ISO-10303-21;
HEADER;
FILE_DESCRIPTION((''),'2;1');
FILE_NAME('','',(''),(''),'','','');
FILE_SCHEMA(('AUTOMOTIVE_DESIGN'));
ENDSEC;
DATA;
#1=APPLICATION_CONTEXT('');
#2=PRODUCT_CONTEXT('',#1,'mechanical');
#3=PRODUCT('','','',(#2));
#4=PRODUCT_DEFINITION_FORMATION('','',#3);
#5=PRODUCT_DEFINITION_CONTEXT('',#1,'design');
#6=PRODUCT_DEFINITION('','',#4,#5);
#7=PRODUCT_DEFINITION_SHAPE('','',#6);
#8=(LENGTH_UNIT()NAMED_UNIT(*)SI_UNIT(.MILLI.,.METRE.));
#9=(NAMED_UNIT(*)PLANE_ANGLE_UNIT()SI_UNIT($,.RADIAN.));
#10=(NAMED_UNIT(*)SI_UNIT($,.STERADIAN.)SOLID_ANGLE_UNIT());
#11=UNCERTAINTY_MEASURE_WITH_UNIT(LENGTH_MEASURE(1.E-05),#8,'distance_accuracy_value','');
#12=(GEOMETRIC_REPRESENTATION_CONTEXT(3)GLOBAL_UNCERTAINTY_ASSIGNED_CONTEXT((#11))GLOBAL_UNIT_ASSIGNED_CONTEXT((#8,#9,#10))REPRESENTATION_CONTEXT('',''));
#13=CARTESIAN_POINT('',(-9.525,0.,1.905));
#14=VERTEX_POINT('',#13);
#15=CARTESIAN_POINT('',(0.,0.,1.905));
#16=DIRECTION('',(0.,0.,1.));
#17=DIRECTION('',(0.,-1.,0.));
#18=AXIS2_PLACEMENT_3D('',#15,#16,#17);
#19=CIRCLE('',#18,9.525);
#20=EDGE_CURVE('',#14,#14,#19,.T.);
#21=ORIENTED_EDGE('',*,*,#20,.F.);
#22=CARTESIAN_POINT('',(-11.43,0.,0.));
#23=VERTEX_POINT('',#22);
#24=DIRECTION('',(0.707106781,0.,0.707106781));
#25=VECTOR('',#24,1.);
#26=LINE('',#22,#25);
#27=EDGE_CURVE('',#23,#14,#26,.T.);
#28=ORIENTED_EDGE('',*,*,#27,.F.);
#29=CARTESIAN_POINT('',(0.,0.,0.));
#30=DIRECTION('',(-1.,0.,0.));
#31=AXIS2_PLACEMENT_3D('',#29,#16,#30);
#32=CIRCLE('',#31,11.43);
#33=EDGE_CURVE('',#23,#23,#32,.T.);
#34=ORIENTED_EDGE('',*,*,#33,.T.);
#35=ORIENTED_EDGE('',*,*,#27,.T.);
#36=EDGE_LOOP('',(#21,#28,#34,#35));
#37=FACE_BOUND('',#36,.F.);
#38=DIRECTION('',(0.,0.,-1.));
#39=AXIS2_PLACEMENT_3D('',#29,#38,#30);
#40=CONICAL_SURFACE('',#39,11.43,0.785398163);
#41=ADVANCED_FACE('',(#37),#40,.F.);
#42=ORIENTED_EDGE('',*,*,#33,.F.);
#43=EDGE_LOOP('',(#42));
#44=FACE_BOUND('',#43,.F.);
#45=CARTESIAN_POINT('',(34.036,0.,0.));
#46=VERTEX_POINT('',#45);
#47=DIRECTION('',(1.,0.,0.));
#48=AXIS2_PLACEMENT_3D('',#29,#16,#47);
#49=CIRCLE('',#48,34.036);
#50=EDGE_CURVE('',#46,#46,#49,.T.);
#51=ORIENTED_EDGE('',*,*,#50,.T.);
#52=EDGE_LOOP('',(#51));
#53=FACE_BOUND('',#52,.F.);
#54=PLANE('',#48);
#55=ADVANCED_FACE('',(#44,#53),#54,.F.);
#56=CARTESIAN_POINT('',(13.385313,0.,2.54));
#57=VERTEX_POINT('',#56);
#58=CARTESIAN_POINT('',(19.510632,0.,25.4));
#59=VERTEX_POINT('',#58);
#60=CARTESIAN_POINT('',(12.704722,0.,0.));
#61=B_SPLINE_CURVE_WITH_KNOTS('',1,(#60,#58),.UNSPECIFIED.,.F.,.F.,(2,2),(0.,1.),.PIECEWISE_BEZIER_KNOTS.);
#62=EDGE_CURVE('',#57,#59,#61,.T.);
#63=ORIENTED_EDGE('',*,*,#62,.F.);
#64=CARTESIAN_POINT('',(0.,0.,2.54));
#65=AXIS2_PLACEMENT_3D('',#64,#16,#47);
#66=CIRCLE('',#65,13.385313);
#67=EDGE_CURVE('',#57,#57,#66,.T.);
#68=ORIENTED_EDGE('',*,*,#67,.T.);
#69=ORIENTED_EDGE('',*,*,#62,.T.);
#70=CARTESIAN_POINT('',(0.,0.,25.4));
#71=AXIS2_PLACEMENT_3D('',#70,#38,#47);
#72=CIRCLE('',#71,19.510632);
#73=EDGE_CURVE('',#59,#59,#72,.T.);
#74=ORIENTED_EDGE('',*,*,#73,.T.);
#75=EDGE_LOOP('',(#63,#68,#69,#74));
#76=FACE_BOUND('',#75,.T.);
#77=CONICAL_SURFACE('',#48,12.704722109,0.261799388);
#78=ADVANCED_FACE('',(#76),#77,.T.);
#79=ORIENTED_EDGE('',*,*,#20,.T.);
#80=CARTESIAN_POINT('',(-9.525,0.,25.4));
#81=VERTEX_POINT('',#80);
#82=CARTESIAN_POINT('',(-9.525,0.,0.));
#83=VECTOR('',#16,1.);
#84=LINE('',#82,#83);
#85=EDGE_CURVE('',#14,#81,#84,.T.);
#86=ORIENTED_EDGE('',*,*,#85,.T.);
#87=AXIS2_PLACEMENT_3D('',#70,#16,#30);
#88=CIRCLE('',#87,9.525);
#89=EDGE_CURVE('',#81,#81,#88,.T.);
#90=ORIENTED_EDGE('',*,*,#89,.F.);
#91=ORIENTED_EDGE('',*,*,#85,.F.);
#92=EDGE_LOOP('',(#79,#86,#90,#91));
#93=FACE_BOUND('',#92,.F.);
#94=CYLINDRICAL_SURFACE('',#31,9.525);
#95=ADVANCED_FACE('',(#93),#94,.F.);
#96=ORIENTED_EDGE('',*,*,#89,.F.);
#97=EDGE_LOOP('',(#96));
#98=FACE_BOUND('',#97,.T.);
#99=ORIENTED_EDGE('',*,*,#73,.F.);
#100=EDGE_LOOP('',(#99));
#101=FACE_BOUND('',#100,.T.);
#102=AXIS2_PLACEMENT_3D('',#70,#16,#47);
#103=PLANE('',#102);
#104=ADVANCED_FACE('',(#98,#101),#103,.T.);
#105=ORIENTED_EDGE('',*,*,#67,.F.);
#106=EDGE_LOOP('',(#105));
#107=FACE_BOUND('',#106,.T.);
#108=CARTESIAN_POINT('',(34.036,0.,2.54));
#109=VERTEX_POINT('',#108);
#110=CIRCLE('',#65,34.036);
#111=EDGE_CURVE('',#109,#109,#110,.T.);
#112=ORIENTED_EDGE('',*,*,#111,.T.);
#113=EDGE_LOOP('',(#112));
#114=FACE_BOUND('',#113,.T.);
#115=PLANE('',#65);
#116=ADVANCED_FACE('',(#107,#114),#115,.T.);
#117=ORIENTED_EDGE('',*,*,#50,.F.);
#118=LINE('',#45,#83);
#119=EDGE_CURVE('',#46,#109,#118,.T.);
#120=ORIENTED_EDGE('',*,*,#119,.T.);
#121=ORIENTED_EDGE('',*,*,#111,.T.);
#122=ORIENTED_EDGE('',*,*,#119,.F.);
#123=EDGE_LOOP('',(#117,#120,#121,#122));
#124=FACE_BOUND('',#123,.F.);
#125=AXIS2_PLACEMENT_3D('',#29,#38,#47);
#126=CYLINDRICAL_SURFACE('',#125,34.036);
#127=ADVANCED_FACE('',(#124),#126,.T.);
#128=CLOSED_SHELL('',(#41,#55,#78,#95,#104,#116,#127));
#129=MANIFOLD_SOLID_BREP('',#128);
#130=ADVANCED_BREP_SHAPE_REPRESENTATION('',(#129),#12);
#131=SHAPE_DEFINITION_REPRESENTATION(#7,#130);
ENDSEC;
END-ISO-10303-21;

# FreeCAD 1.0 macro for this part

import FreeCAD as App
import Part
import Sketcher
from FreeCAD import Vector
Q = App.Units.Quantity

doc = App.newDocument("Part")
body = doc.addObject("PartDesign::Body", "Body")

sketch1 = body.newObject("Sketcher::SketchObject", "Sketch")
sketch1.AttachmentSupport = (doc.getObject("XY_Plane"), [""])
sketch1.MapMode = "FlatFace"
sketch1.addGeometry(Part.Circle(Vector(0, 0, 0), Vector(0, 0, 1), 34), False)
sketch1.addGeometry(Part.Circle(Vector(0, 0, 0), Vector(0, 0, 1), 6), False)
sketch1.addConstraint(Sketcher.Constraint("Coincident", 0, 3, -1, 1))
sketch1.addConstraint(Sketcher.Constraint("Coincident", 1, 3, -1, 1))
sketch1.addConstraint(Sketcher.Constraint("Diameter", 1, Q("0.5 in")))
sketch1.addConstraint(Sketcher.Constraint("Diameter", 0, Q("2.68 in")))
pad1 = body.newObject("PartDesign::Pad", "Pad")
pad1.Profile = sketch1
pad1.Length = Q("0.1 in")

sketch2 = body.newObject("Sketcher::SketchObject", "Sketch001")
sketch2.AttachmentSupport = (doc.getObject("XY_Plane"), [""])
sketch2.MapMode = "FlatFace"
sketch2.addGeometry(Part.Circle(Vector(0, 0, 0), Vector(0, 0, 1), 13), False)
sketch2.addConstraint(Sketcher.Constraint("Coincident", 0, 3, -1, 1))
sketch2.addConstraint(Sketcher.Constraint("Diameter", 0, 25.409444))
pad2 = body.newObject("PartDesign::Pad", "Pad001")
pad2.Profile = sketch2
pad2.Length = Q("1 in")
pad2.TaperAngle = 15

sketch3 = body.newObject("Sketcher::SketchObject", "Sketch002")
sketch3.AttachmentSupport = (doc.getObject("XY_Plane"), [""])
sketch3.MapMode = "FlatFace"
sketch3.addGeometry(Part.Circle(Vector(0, 0, 0), Vector(0, 0, 1), 10), False)
sketch3.addConstraint(Sketcher.Constraint("Coincident", 0, 3, -1, 1))
sketch3.addConstraint(Sketcher.Constraint("Diameter", 0, Q("0.75 in")))
doc.recompute()
hole = body.newObject("PartDesign::Hole", "Hole")
hole.Profile = sketch3
hole.ThreadType = "None"
hole.Diameter = Q("0.75 in")
hole.DepthType = "ThroughAll"
hole.HoleCutType = "Countersink"
hole.HoleCutDiameter = Q("0.9 in")
hole.HoleCutCountersinkAngle = 90
hole.Reversed = True

doc.recompute()
